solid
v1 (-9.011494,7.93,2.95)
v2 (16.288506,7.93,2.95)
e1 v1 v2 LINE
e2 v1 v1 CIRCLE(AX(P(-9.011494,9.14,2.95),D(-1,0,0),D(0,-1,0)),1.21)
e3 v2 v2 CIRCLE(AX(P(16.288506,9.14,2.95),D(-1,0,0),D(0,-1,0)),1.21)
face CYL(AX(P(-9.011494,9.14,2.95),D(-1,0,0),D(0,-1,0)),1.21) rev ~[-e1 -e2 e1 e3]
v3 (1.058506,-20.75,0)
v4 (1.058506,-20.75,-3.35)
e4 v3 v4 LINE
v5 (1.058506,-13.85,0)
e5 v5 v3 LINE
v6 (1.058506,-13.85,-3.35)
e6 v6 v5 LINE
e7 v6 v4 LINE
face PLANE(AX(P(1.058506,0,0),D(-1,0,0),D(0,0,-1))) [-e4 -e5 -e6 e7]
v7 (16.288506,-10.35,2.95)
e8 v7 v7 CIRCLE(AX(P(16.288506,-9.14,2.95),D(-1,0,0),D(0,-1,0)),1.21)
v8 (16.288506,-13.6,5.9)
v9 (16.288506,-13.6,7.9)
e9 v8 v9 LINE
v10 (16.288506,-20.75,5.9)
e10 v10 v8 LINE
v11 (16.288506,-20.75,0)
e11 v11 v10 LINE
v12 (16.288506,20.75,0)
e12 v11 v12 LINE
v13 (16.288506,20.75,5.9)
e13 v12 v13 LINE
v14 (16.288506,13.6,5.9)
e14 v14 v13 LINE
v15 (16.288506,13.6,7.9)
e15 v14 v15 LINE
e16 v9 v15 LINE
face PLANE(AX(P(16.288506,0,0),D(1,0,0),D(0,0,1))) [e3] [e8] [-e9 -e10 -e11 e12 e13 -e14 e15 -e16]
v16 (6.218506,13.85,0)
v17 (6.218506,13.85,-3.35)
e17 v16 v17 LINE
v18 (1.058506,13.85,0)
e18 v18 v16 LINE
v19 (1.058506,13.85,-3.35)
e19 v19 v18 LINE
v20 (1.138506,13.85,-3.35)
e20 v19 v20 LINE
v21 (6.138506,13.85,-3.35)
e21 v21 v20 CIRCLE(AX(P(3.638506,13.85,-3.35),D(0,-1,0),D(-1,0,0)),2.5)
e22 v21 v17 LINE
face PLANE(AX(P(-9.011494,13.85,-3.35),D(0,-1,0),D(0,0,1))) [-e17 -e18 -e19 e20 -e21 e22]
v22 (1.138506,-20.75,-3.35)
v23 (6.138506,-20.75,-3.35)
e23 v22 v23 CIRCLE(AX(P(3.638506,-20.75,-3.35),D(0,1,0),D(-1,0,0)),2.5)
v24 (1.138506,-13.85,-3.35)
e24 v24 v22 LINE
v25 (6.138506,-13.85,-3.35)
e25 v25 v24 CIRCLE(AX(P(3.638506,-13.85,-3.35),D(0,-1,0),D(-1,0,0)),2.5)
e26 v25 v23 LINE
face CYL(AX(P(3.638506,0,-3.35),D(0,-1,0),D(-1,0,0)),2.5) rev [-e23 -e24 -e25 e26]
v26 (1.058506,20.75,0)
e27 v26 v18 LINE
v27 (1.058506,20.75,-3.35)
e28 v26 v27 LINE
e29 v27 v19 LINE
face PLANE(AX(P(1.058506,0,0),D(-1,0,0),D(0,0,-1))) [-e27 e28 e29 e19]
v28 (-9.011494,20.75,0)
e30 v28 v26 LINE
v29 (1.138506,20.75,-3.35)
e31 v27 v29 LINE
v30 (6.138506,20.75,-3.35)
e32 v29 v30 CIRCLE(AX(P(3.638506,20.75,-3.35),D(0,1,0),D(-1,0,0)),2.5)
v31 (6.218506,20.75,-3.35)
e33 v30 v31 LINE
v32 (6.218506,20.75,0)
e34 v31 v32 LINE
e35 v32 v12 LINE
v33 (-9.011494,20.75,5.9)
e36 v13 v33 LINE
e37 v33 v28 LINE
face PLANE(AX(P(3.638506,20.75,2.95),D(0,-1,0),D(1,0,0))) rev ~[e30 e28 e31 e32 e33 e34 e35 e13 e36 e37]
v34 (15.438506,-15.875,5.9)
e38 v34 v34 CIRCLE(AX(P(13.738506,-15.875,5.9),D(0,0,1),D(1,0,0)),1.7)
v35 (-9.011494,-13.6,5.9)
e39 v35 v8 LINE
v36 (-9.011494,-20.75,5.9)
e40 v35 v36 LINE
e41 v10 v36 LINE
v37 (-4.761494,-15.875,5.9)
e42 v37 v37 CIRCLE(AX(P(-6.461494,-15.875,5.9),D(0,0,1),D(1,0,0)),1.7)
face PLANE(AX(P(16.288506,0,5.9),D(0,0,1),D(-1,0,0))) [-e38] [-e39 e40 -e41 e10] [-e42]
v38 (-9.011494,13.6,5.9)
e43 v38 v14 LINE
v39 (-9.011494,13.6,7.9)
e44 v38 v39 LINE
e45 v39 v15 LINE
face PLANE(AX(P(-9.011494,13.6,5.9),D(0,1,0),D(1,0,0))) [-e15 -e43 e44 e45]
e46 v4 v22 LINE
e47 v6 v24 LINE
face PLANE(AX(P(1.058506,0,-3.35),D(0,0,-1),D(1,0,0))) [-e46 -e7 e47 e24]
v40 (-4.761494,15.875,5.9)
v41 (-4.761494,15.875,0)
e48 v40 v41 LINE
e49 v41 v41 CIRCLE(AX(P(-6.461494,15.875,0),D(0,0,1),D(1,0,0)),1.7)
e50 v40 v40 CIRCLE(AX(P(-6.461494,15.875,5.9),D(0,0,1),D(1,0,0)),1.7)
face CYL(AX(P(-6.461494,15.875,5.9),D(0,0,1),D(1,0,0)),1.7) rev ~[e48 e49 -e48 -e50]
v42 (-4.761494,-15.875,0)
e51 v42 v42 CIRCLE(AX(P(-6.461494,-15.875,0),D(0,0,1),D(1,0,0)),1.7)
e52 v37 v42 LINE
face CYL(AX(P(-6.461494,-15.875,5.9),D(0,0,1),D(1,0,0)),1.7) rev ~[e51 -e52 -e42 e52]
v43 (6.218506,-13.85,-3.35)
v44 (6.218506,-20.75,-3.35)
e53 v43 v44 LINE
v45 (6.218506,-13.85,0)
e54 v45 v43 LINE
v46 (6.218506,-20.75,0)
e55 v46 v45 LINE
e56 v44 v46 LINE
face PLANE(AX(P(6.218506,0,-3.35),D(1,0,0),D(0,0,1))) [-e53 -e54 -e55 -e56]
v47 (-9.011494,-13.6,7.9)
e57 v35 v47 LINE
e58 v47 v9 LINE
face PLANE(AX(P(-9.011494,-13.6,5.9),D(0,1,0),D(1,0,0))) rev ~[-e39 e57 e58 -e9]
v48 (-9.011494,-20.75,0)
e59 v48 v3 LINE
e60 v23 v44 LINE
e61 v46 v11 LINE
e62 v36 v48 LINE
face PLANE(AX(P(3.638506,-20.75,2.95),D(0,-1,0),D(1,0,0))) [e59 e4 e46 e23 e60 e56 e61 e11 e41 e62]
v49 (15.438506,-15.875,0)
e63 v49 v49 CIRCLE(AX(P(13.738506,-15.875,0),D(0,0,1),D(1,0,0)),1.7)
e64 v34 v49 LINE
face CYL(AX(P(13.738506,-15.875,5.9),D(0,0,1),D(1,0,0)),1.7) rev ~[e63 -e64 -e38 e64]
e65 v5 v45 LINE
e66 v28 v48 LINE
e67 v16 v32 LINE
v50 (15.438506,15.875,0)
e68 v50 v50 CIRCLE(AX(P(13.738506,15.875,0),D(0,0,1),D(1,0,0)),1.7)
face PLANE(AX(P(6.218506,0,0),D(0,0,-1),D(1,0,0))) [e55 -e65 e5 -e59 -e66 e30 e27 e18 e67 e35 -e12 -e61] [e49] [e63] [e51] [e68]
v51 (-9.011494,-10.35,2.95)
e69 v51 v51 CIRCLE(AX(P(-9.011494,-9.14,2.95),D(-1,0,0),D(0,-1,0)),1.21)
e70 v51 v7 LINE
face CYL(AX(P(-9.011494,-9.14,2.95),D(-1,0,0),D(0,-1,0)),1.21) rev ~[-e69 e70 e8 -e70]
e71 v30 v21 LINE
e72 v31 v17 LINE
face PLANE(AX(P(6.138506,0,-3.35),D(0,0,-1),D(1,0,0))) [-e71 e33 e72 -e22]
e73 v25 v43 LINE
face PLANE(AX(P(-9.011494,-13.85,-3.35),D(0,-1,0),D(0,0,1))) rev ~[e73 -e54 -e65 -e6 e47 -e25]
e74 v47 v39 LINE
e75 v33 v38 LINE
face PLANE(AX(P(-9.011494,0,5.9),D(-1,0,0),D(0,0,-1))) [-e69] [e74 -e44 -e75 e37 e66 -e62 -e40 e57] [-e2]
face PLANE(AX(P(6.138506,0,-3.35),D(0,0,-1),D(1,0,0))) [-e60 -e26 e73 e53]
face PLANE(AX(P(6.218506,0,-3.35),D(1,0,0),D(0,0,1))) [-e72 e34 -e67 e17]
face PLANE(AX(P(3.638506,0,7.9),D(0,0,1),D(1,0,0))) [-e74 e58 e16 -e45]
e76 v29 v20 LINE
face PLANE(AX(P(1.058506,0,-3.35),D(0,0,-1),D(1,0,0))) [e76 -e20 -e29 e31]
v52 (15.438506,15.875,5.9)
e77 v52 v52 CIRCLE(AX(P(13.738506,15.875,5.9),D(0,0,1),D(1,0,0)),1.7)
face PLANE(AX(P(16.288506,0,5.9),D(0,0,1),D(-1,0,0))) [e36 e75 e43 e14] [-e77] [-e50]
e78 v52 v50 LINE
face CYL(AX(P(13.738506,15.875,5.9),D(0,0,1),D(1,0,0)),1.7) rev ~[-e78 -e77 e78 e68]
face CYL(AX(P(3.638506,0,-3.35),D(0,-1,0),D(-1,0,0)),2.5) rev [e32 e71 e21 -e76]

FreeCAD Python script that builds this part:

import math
import FreeCAD as App
import Part
import Sketcher

doc = App.newDocument("Part")
body = doc.addObject("PartDesign::Body", "Body")

sketch1 = doc.addObject("Sketcher::SketchObject", "Sketch")
body.addObject(sketch1)
sketch1.AttachmentSupport = (doc.XZ_Plane, [""])
sketch1.MapMode = "FlatFace"
sketch1.addGeometry(Part.LineSegment(App.Vector(16.29, 5.9, 0), App.Vector(-9.01, 5.9, 0)), False)
sketch1.addGeometry(Part.LineSegment(App.Vector(-9.01, 5.9, 0), App.Vector(-9.01, 0, 0)), False)
sketch1.addGeometry(Part.LineSegment(App.Vector(-9.01, 0, 0), App.Vector(1.06, 0, 0)), False)
sketch1.addGeometry(Part.LineSegment(App.Vector(1.06, 0, 0), App.Vector(1.06, -3.35, 0)), False)
sketch1.addGeometry(Part.LineSegment(App.Vector(1.06, -3.35, 0), App.Vector(1.14, -3.35, 0)), False)
sketch1.addGeometry(Part.ArcOfCircle(Part.Circle(App.Vector(3.64, -3.35, 0), App.Vector(0, 0, 1), 2.5), math.radians(0), math.radians(180)), False)
sketch1.addGeometry(Part.LineSegment(App.Vector(6.14, -3.35, 0), App.Vector(6.22, -3.35, 0)), False)
sketch1.addGeometry(Part.LineSegment(App.Vector(6.22, -3.35, 0), App.Vector(6.22, 0, 0)), False)
sketch1.addGeometry(Part.LineSegment(App.Vector(6.22, 0, 0), App.Vector(16.29, 0, 0)), False)
sketch1.addGeometry(Part.LineSegment(App.Vector(16.29, 0, 0), App.Vector(16.29, 5.9, 0)), False)
sketch1.addConstraint(Sketcher.Constraint("Coincident", 0, 2, 1, 1))
sketch1.addConstraint(Sketcher.Constraint("Coincident", 1, 2, 2, 1))
sketch1.addConstraint(Sketcher.Constraint("Coincident", 2, 2, 3, 1))
sketch1.addConstraint(Sketcher.Constraint("Coincident", 3, 2, 4, 1))
sketch1.addConstraint(Sketcher.Constraint("Coincident", 4, 2, 5, 2))
sketch1.addConstraint(Sketcher.Constraint("Coincident", 5, 1, 6, 1))
sketch1.addConstraint(Sketcher.Constraint("Coincident", 6, 2, 7, 1))
sketch1.addConstraint(Sketcher.Constraint("Coincident", 7, 2, 8, 1))
sketch1.addConstraint(Sketcher.Constraint("Coincident", 8, 2, 9, 1))
sketch1.addConstraint(Sketcher.Constraint("Coincident", 9, 2, 0, 1))
sketch1.addConstraint(Sketcher.Constraint("Horizontal", 0))
sketch1.addConstraint(Sketcher.Constraint("Vertical", 1))
sketch1.addConstraint(Sketcher.Constraint("Horizontal", 2))
sketch1.addConstraint(Sketcher.Constraint("Vertical", 3))
sketch1.addConstraint(Sketcher.Constraint("Horizontal", 4))
sketch1.addConstraint(Sketcher.Constraint("Horizontal", 6))
sketch1.addConstraint(Sketcher.Constraint("Vertical", 7))
sketch1.addConstraint(Sketcher.Constraint("Horizontal", 8))
sketch1.addConstraint(Sketcher.Constraint("Vertical", 9))
sketch1.addConstraint(Sketcher.Constraint("PointOnObject", 1, 2, -1))
sketch1.addConstraint(Sketcher.Constraint("PointOnObject", 7, 2, -1))
sketch1.addConstraint(Sketcher.Constraint("Horizontal", 5, 3, 3, 2))
sketch1.addConstraint(Sketcher.Constraint("Horizontal", 4, 2, 5, 1))
sketch1.addConstraint(Sketcher.Constraint("Equal", 4, 6))
sketch1.addConstraint(Sketcher.Constraint("Equal", 2, 8))
sketch1.addConstraint(Sketcher.Constraint("Radius", 5, 2.5))
sketch1.addConstraint(Sketcher.Constraint("DistanceX", 0, 2, 0, 1, 25.3))
sketch1.addConstraint(Sketcher.Constraint("DistanceY", 1, 2, 1, 1, 5.9))
sketch1.addConstraint(Sketcher.Constraint("DistanceX", 2, 1, 2, 2, 10.07))
sketch1.addConstraint(Sketcher.Constraint("DistanceY", 3, 2, 3, 1, 3.35))
sketch1.addConstraint(Sketcher.Constraint("DistanceX", -1, 1, 5, 3, 3.638506))
pad1 = doc.addObject("PartDesign::Pad", "Pad")
body.addObject(pad1)
pad1.Profile = sketch1
pad1.Length = 41.5
pad1.Midplane = True

sketch2 = doc.addObject("Sketcher::SketchObject", "Sketch001")
body.addObject(sketch2)
sketch2.AttachmentSupport = (doc.XY_Plane, [""])
sketch2.MapMode = "FlatFace"
sketch2.AttachmentOffset = App.Placement(App.Vector(0, 0, 5.9), App.Rotation())
sketch2.addGeometry(Part.LineSegment(App.Vector(-9, 14, 0), App.Vector(-9, -14, 0)), False)
sketch2.addGeometry(Part.LineSegment(App.Vector(-9, -14, 0), App.Vector(16, -14, 0)), False)
sketch2.addGeometry(Part.LineSegment(App.Vector(16, -14, 0), App.Vector(16, 14, 0)), False)
sketch2.addGeometry(Part.LineSegment(App.Vector(16, 14, 0), App.Vector(-9, 14, 0)), False)
sketch2.addConstraint(Sketcher.Constraint("Coincident", 0, 2, 1, 1))
sketch2.addConstraint(Sketcher.Constraint("Coincident", 1, 2, 2, 1))
sketch2.addConstraint(Sketcher.Constraint("Coincident", 2, 2, 3, 1))
sketch2.addConstraint(Sketcher.Constraint("Coincident", 3, 2, 0, 1))
sketch2.addConstraint(Sketcher.Constraint("Vertical", 0))
sketch2.addConstraint(Sketcher.Constraint("Horizontal", 1))
sketch2.addConstraint(Sketcher.Constraint("Vertical", 2))
sketch2.addConstraint(Sketcher.Constraint("Horizontal", 3))
sketch2.addConstraint(Sketcher.Constraint("DistanceX", 1, 1, 1, 2, 25.3))
sketch2.addConstraint(Sketcher.Constraint("DistanceY", 0, 2, 0, 1, 27.2))
sketch2.addConstraint(Sketcher.Constraint("DistanceY", 0, 2, -1, 1, 13.6))
sketch2.addConstraint(Sketcher.Constraint("DistanceX", 0, 2, -1, 1, 9.011494))
pad2 = doc.addObject("PartDesign::Pad", "Pad001")
body.addObject(pad2)
pad2.Profile = sketch2
pad2.Length = 2

sketch3 = doc.addObject("Sketcher::SketchObject", "Sketch002")
body.addObject(sketch3)
sketch3.AttachmentSupport = (doc.XY_Plane, [""])
sketch3.MapMode = "FlatFace"
sketch3.AttachmentOffset = App.Placement(App.Vector(0, 0, 5.9), App.Rotation())
sketch3.addGeometry(Part.Circle(App.Vector(13.7, 15.9, 0), App.Vector(0, 0, 1), 1.7), False)
sketch3.addGeometry(Part.Circle(App.Vector(-6.5, 15.9, 0), App.Vector(0, 0, 1), 1.7), False)
sketch3.addGeometry(Part.Circle(App.Vector(-6.5, -15.9, 0), App.Vector(0, 0, 1), 1.7), False)
sketch3.addGeometry(Part.Circle(App.Vector(13.7, -15.9, 0), App.Vector(0, 0, 1), 1.7), False)
sketch3.addConstraint(Sketcher.Constraint("Equal", 0, 1))
sketch3.addConstraint(Sketcher.Constraint("Equal", 1, 2))
sketch3.addConstraint(Sketcher.Constraint("Equal", 2, 3))
sketch3.addConstraint(Sketcher.Constraint("Symmetric", 1, 3, 2, 3, -1))
sketch3.addConstraint(Sketcher.Constraint("Symmetric", 0, 3, 3, 3, -1))
sketch3.addConstraint(Sketcher.Constraint("Horizontal", 0, 3, 1, 3))
sketch3.addConstraint(Sketcher.Constraint("Diameter", 0, 3.4))
sketch3.addConstraint(Sketcher.Constraint("DistanceX", 1, 3, 0, 3, 20.2))
sketch3.addConstraint(Sketcher.Constraint("DistanceY", 2, 3, 1, 3, 31.75))
sketch3.addConstraint(Sketcher.Constraint("DistanceX", -1, 1, 0, 3, 13.738506))
pocket1 = doc.addObject("PartDesign::Pocket", "Pocket")
body.addObject(pocket1)
pocket1.Profile = sketch3
pocket1.Type = "ThroughAll"

sketch4 = doc.addObject("Sketcher::SketchObject", "Sketch003")
body.addObject(sketch4)
sketch4.AttachmentSupport = (doc.YZ_Plane, [""])
sketch4.MapMode = "FlatFace"
sketch4.AttachmentOffset = App.Placement(App.Vector(0, 0, -9.011494), App.Rotation())
sketch4.addGeometry(Part.LineSegment(App.Vector(13.8, 0, 0), App.Vector(13.8, -3.4, 0)), False)
sketch4.addGeometry(Part.LineSegment(App.Vector(13.8, -3.4, 0), App.Vector(-13.8, -3.4, 0)), False)
sketch4.addGeometry(Part.LineSegment(App.Vector(-13.8, -3.4, 0), App.Vector(-13.8, 0, 0)), False)
sketch4.addGeometry(Part.LineSegment(App.Vector(-13.8, 0, 0), App.Vector(13.8, 0, 0)), False)
sketch4.addGeometry(Part.Circle(App.Vector(-9.1, 3, 0), App.Vector(0, 0, 1), 1.2), False)
sketch4.addGeometry(Part.Circle(App.Vector(9.1, 3, 0), App.Vector(0, 0, 1), 1.2), False)
sketch4.addConstraint(Sketcher.Constraint("Coincident", 0, 2, 1, 1))
sketch4.addConstraint(Sketcher.Constraint("Coincident", 1, 2, 2, 1))
sketch4.addConstraint(Sketcher.Constraint("Coincident", 2, 2, 3, 1))
sketch4.addConstraint(Sketcher.Constraint("Coincident", 3, 2, 0, 1))
sketch4.addConstraint(Sketcher.Constraint("Vertical", 0))
sketch4.addConstraint(Sketcher.Constraint("Horizontal", 1))
sketch4.addConstraint(Sketcher.Constraint("Vertical", 2))
sketch4.addConstraint(Sketcher.Constraint("Horizontal", 3))
sketch4.addConstraint(Sketcher.Constraint("Equal", 4, 5))
sketch4.addConstraint(Sketcher.Constraint("Symmetric", 2, 2, 3, 2, -1, 1))
sketch4.addConstraint(Sketcher.Constraint("Symmetric", 4, 3, 5, 3, -2))
sketch4.addConstraint(Sketcher.Constraint("Diameter", 4, 2.42))
sketch4.addConstraint(Sketcher.Constraint("DistanceX", 1, 2, 1, 1, 27.7))
sketch4.addConstraint(Sketcher.Constraint("DistanceY", 0, 2, 0, 1, 3.35))
sketch4.addConstraint(Sketcher.Constraint("DistanceY", 0, 2, 5, 3, 6.3))
sketch4.addConstraint(Sketcher.Constraint("DistanceX", 4, 3, -1, 1, 9.14))
pocket2 = doc.addObject("PartDesign::Pocket", "Pocket001")
body.addObject(pocket2)
pocket2.Profile = sketch4
pocket2.Type = "ThroughAll"
pocket2.Reversed = True

doc.recompute()
